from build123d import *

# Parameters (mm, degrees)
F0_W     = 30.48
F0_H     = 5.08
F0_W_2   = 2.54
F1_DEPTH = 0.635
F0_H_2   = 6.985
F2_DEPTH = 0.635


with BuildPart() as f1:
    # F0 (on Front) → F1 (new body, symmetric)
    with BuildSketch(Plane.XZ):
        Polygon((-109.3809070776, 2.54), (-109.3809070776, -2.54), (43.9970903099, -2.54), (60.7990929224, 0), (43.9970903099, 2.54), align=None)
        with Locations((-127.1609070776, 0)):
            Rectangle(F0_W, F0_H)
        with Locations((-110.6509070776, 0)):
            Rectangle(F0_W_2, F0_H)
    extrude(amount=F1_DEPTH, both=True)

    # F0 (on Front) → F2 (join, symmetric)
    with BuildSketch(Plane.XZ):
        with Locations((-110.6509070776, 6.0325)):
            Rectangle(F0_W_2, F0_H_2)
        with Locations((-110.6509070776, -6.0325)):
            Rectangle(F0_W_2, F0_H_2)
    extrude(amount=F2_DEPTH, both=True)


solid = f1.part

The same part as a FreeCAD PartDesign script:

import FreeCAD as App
import Part
import Sketcher

V = App.Vector
Q = App.Units.Quantity


def add_polygon(sketch, points):
    """Adds a closed chain of lines whose ends are joined by coincident constraints."""
    first, n = sketch.GeometryCount, len(points)
    for a, b in zip(points, points[1:] + points[:1]):
        sketch.addGeometry(Part.LineSegment(App.Vector(*a, 0), App.Vector(*b, 0)), False)
    for i in range(n):
        sketch.addConstraint(Sketcher.Constraint("Coincident", first + i, 2, first + (i + 1) % n, 1))

doc = App.newDocument("Part")
body = doc.addObject("PartDesign::Body", "Body")

# Sketch on XZ plane
sketch1 = body.newObject("Sketcher::SketchObject", "Sketch")
sketch1.AttachmentSupport = (doc.getObject("XZ_Plane"), [""])
sketch1.MapMode = "FlatFace"
add_polygon(sketch1, [(44, -3), (61, 0), (44, 3), (-142, 3), (-142, -3)])  # lines 0-4
sketch1.addConstraint([
    Sketcher.Constraint("Horizontal", 2),
    Sketcher.Constraint("Vertical", 3),
    Sketcher.Constraint("Horizontal", 4),
    Sketcher.Constraint("Symmetric", 1, 2, 4, 2, -1),
    Sketcher.Constraint("PointOnObject", 0, 2, -1),
    Sketcher.Constraint("DistanceY", 3, 2, 3, 1, Q("0.2 in")),
    Sketcher.Constraint("DistanceX", 2, 2, 0, 2, Q("8 in")),
    Sketcher.Constraint("DistanceX", 2, 2, 2, 1, Q("186.397997 mm")),
    Sketcher.Constraint("DistanceX", -1, 1, 1, 2, Q("43.99709 mm")),
])
pad1 = body.newObject("PartDesign::Pad", "Pad")
pad1.Profile = sketch1
pad1.Length = Q("0.05 in")
pad1.Midplane = True

# Sketch on XZ plane
sketch2 = body.newObject("Sketcher::SketchObject", "Sketch001")
sketch2.AttachmentSupport = (doc.getObject("XZ_Plane"), [""])
sketch2.MapMode = "FlatFace"
add_polygon(sketch2, [(-111.9, 9.5), (-111.9, 2.5), (-109.4, 2.5), (-109.4, 9.5)])  # lines 0-3
add_polygon(sketch2, [(-111.9, -2.5), (-111.9, -9.5), (-109.4, -9.5), (-109.4, -2.5)])  # lines 4-7
sketch2.addConstraint([
    Sketcher.Constraint("Vertical", 0),
    Sketcher.Constraint("Horizontal", 1),
    Sketcher.Constraint("Vertical", 2),
    Sketcher.Constraint("Horizontal", 3),
    Sketcher.Constraint("Vertical", 4),
    Sketcher.Constraint("Horizontal", 5),
    Sketcher.Constraint("Vertical", 6),
    Sketcher.Constraint("Horizontal", 7),
    Sketcher.Constraint("Symmetric", 3, 2, 4, 2, -1),
    Sketcher.Constraint("Symmetric", 1, 2, 6, 2, -1),
    Sketcher.Constraint("DistanceX", 1, 1, 1, 2, Q("0.1 in")),
    Sketcher.Constraint("DistanceY", -1, 1, 0, 2, Q("0.1 in")),
    Sketcher.Constraint("DistanceY", 0, 2, 0, 1, Q("0.275 in")),
    Sketcher.Constraint("DistanceX", 0, 2, -1, 1, Q("111.920907 mm")),
])
pad2 = body.newObject("PartDesign::Pad", "Pad001")
pad2.Profile = sketch2
pad2.Length = Q("0.05 in")
pad2.Midplane = True

doc.recompute()
